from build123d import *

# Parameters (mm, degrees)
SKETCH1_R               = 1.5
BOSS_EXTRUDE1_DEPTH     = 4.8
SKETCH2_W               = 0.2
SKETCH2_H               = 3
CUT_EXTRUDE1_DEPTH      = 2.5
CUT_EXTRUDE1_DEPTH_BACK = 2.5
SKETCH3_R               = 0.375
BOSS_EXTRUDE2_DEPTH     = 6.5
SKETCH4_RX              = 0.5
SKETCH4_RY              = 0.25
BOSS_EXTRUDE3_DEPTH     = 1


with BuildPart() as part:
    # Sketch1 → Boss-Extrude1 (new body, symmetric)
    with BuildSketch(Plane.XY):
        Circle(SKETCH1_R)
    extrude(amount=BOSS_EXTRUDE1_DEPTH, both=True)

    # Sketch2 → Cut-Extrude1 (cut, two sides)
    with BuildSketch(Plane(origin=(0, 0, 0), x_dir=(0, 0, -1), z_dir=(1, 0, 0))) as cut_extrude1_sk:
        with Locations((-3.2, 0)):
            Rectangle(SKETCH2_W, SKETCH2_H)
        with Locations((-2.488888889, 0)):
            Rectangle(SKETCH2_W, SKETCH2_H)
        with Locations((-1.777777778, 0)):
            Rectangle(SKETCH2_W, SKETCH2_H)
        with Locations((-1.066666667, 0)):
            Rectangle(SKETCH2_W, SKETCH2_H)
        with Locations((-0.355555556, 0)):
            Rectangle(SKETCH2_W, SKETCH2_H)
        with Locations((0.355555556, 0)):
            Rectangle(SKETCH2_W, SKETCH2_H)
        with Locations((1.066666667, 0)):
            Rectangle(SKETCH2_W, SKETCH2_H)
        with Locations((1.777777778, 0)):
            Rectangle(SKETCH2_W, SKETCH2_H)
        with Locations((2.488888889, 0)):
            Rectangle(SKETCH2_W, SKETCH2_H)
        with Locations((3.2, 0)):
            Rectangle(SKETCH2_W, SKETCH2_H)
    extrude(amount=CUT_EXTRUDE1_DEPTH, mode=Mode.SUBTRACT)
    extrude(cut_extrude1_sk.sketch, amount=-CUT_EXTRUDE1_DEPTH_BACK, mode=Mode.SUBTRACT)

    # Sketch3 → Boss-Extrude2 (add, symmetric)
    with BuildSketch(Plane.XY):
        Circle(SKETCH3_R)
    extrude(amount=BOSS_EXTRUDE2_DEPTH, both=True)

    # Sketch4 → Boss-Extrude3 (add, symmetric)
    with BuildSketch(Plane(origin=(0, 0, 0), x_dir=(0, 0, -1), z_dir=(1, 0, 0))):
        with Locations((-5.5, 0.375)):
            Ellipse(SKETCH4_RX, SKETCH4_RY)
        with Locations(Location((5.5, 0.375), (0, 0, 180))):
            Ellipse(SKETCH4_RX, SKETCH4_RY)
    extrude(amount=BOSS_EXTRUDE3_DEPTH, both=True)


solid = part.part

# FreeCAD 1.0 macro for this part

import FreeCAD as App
import Part
import Sketcher

V = App.Vector


def add_polygon(sketch, points):
    """Adds a closed chain of lines whose ends are joined by coincident constraints."""
    first, n = sketch.GeometryCount, len(points)
    for a, b in zip(points, points[1:] + points[:1]):
        sketch.addGeometry(Part.LineSegment(App.Vector(*a, 0), App.Vector(*b, 0)), False)
    for i in range(n):
        sketch.addConstraint(Sketcher.Constraint("Coincident", first + i, 2, first + (i + 1) % n, 1))

doc = App.newDocument("Part")
body = doc.addObject("PartDesign::Body", "Body")
body.AllowCompound = True

sketch1 = body.newObject("Sketcher::SketchObject", "Sketch")
sketch1.AttachmentSupport = (doc.getObject("XY_Plane"), [""])
sketch1.MapMode = "FlatFace"
sketch1.addGeometry(Part.Circle(V(0, 0, 0), V(0, 0, 1), 1.5), False)
sketch1.addConstraint([
    Sketcher.Constraint("Coincident", 0, 3, -1, 1),
    Sketcher.Constraint("Diameter", 0, 3.0),
])
pad1 = body.newObject("PartDesign::Pad", "Pad")
pad1.Profile = sketch1
pad1.Length = 9.6
pad1.Midplane = True

sketch2 = body.newObject("Sketcher::SketchObject", "Sketch001")
sketch2.AttachmentSupport = (doc.getObject("YZ_Plane"), [""])
sketch2.MapMode = "FlatFace"
add_polygon(sketch2, [(1.5, 3.3), (-1.5, 3.3), (-1.5, 3.1), (1.5, 3.1)])
add_polygon(sketch2, [(1.5, 2.59), (-1.5, 2.59), (-1.5, 2.39), (1.5, 2.39)])
add_polygon(sketch2, [(1.5, 1.88), (-1.5, 1.88), (-1.5, 1.68), (1.5, 1.68)])
add_polygon(sketch2, [(1.5, 1.17), (-1.5, 1.17), (-1.5, 0.97), (1.5, 0.97)])
add_polygon(sketch2, [(1.5, 0.46), (-1.5, 0.46), (-1.5, 0.26), (1.5, 0.26)])
add_polygon(sketch2, [(1.5, -0.26), (-1.5, -0.26), (-1.5, -0.46), (1.5, -0.46)])
add_polygon(sketch2, [(1.5, -0.97), (-1.5, -0.97), (-1.5, -1.17), (1.5, -1.17)])
add_polygon(sketch2, [(1.5, -1.68), (-1.5, -1.68), (-1.5, -1.88), (1.5, -1.88)])
add_polygon(sketch2, [(1.5, -2.39), (-1.5, -2.39), (-1.5, -2.59), (1.5, -2.59)])
add_polygon(sketch2, [(1.5, -3.1), (-1.5, -3.1), (-1.5, -3.3), (1.5, -3.3)])
sketch2.addConstraint([
    Sketcher.Constraint("Horizontal", 0),
    Sketcher.Constraint("Vertical", 1),
    Sketcher.Constraint("Horizontal", 2),
    Sketcher.Constraint("Vertical", 3),
    Sketcher.Constraint("Horizontal", 4),
    Sketcher.Constraint("Vertical", 5),
    Sketcher.Constraint("Horizontal", 6),
    Sketcher.Constraint("Vertical", 7),
    Sketcher.Constraint("Horizontal", 8),
    Sketcher.Constraint("Vertical", 9),
    Sketcher.Constraint("Horizontal", 10),
    Sketcher.Constraint("Vertical", 11),
    Sketcher.Constraint("Horizontal", 12),
    Sketcher.Constraint("Vertical", 13),
    Sketcher.Constraint("Horizontal", 14),
    Sketcher.Constraint("Vertical", 15),
    Sketcher.Constraint("Horizontal", 16),
    Sketcher.Constraint("Vertical", 17),
    Sketcher.Constraint("Horizontal", 18),
    Sketcher.Constraint("Vertical", 19),
    Sketcher.Constraint("Horizontal", 20),
    Sketcher.Constraint("Vertical", 21),
    Sketcher.Constraint("Horizontal", 22),
    Sketcher.Constraint("Vertical", 23),
    Sketcher.Constraint("Horizontal", 24),
    Sketcher.Constraint("Vertical", 25),
    Sketcher.Constraint("Horizontal", 26),
    Sketcher.Constraint("Vertical", 27),
    Sketcher.Constraint("Horizontal", 28),
    Sketcher.Constraint("Vertical", 29),
    Sketcher.Constraint("Horizontal", 30),
    Sketcher.Constraint("Vertical", 31),
    Sketcher.Constraint("Horizontal", 32),
    Sketcher.Constraint("Vertical", 33),
    Sketcher.Constraint("Horizontal", 34),
    Sketcher.Constraint("Vertical", 35),
    Sketcher.Constraint("Horizontal", 36),
    Sketcher.Constraint("Vertical", 37),
    Sketcher.Constraint("Horizontal", 38),
    Sketcher.Constraint("Vertical", 39),
    Sketcher.Constraint("Symmetric", 18, 2, 20, 2, -1, 1),
    Sketcher.Constraint("Symmetric", 16, 2, 22, 2, -1, 1),
    Sketcher.Constraint("Symmetric", 14, 2, 24, 2, -1, 1),
    Sketcher.Constraint("Symmetric", 12, 2, 26, 2, -1, 1),
    Sketcher.Constraint("Symmetric", 10, 2, 28, 2, -1, 1),
    Sketcher.Constraint("Symmetric", 8, 2, 30, 2, -1, 1),
    Sketcher.Constraint("Symmetric", 6, 2, 32, 2, -1, 1),
    Sketcher.Constraint("Symmetric", 4, 2, 34, 2, -1, 1),
    Sketcher.Constraint("Symmetric", 2, 2, 36, 2, -1, 1),
    Sketcher.Constraint("Symmetric", 0, 2, 38, 2, -1, 1),
    Sketcher.Constraint("Vertical", 1, 2, 4, 2),
    Sketcher.Constraint("Vertical", 3, 2, 6, 2),
    Sketcher.Constraint("Vertical", 5, 2, 8, 2),
    Sketcher.Constraint("Vertical", 7, 2, 10, 2),
    Sketcher.Constraint("Vertical", 9, 2, 12, 2),
    Sketcher.Constraint("Vertical", 11, 2, 14, 2),
    Sketcher.Constraint("Vertical", 13, 2, 16, 2),
    Sketcher.Constraint("Vertical", 15, 2, 18, 2),
    Sketcher.Constraint("Vertical", 17, 2, 20, 2),
    Sketcher.Constraint("Equal", 3, 5),
    Sketcher.Constraint("Equal", 7, 9),
    Sketcher.Constraint("Equal", 11, 13),
    Sketcher.Constraint("Equal", 15, 17),
    Sketcher.Constraint("DistanceX", 0, 2, 0, 1, 3.0),
    Sketcher.Constraint("DistanceY", 1, 2, 1, 1, 0.2),
    Sketcher.Constraint("DistanceY", -1, 1, 0, 2, 3.3),
    Sketcher.Constraint("DistanceY", -1, 1, 4, 2, 2.588889),
    Sketcher.Constraint("DistanceY", 8, 2, 5, 2, 0.511111),
    Sketcher.Constraint("DistanceY", 12, 2, 9, 2, 0.511111),
    Sketcher.Constraint("DistanceY", 16, 2, 13, 2, 0.511111),
])
pocket1 = body.newObject("PartDesign::Pocket", "Pocket")
pocket1.Profile = sketch2
pocket1.Type = "ThroughAll"
pocket1.Midplane = True

sketch3 = body.newObject("Sketcher::SketchObject", "Sketch002")
sketch3.AttachmentSupport = (doc.getObject("XY_Plane"), [""])
sketch3.MapMode = "FlatFace"
sketch3.addGeometry(Part.Circle(V(0, 0, 0), V(0, 0, 1), 0.38), False)
sketch3.addConstraint([
    Sketcher.Constraint("Coincident", 0, 3, -1, 1),
    Sketcher.Constraint("Diameter", 0, 0.75),
])
pad2 = body.newObject("PartDesign::Pad", "Pad001")
pad2.Profile = sketch3
pad2.Length = 13
pad2.Midplane = True

sketch4 = body.newObject("Sketcher::SketchObject", "Sketch003")
sketch4.AttachmentSupport = (doc.getObject("YZ_Plane"), [""])
sketch4.MapMode = "FlatFace"
sketch4.addGeometry([
    Part.Ellipse(V(0.375, 5, 0), V(0.625, 5.5, 0), V(0.375, 5.5, 0)),
    Part.Ellipse(V(0.375, -5, 0), V(0.125, -5.5, 0), V(0.375, -5.5, 0)),
], False)
sketch4.addConstraint([
    Sketcher.Constraint("Block", 0),
    Sketcher.Constraint("Block", 1),
])
pad3 = body.newObject("PartDesign::Pad", "Pad002")
pad3.Profile = sketch4
pad3.Length = 2
pad3.Midplane = True

doc.recompute()
